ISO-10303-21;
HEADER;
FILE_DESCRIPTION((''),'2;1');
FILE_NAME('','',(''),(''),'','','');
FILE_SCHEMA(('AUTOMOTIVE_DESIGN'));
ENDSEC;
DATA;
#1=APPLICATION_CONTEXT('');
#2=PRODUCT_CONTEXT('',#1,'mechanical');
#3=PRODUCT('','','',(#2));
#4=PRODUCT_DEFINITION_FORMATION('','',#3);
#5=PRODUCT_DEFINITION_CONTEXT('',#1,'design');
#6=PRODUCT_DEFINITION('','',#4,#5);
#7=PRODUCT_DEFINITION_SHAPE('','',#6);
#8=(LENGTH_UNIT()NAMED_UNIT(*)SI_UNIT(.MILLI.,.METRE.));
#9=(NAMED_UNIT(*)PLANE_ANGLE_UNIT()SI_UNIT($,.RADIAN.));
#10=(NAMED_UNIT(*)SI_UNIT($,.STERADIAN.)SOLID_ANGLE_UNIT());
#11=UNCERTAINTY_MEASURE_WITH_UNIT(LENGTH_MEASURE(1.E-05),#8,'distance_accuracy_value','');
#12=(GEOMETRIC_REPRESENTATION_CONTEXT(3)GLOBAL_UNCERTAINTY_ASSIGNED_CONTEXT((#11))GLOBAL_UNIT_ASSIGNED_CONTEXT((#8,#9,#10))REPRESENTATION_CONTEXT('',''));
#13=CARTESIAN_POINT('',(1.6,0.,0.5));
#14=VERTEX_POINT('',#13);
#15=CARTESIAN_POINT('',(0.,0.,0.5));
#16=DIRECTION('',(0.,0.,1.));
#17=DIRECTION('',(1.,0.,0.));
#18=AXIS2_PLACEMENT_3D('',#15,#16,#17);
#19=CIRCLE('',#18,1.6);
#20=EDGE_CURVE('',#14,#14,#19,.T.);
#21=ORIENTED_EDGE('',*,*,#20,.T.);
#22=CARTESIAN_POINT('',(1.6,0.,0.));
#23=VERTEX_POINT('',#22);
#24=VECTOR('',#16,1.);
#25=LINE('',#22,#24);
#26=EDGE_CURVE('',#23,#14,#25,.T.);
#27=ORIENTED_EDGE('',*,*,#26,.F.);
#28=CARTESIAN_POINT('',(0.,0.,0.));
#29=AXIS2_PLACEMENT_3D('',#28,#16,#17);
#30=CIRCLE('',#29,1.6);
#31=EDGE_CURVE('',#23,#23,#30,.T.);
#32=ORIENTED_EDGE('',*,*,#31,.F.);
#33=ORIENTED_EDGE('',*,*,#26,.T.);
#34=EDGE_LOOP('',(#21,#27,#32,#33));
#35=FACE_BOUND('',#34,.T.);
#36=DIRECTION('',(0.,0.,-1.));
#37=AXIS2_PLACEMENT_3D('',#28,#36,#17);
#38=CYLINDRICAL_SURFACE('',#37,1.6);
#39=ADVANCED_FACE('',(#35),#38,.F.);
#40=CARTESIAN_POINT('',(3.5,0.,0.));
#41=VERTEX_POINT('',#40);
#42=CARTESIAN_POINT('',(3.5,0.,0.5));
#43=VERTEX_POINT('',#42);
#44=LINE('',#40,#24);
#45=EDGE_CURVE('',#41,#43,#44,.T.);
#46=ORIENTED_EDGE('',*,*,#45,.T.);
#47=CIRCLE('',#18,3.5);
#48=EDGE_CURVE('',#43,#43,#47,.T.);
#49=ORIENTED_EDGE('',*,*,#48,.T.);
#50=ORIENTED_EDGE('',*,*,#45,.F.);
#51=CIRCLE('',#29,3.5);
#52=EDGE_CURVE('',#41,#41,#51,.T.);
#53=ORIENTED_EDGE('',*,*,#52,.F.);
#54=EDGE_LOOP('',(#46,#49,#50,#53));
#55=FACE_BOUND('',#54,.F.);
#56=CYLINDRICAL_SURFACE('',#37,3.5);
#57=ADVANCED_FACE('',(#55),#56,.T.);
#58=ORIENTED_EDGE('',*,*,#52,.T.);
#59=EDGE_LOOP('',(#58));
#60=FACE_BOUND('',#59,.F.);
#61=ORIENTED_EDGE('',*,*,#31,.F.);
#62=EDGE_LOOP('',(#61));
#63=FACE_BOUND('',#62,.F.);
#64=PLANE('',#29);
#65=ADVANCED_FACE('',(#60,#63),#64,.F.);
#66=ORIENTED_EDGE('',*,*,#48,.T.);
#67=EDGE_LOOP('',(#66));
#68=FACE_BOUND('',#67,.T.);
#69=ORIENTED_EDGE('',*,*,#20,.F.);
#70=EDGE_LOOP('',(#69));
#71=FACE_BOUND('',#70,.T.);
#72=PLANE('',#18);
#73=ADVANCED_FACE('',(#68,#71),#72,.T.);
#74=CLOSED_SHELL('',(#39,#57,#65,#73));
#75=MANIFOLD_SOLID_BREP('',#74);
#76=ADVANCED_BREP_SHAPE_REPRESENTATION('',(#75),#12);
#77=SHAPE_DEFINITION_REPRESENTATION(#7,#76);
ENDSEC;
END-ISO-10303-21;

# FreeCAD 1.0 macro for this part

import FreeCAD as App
import Part
import Sketcher
from FreeCAD import Vector

doc = App.newDocument("Part")
body = doc.addObject("PartDesign::Body", "Body")

sketch1 = doc.addObject("Sketcher::SketchObject", "Sketch")
body.addObject(sketch1)
sketch1.AttachmentSupport = (doc.XY_Plane, [""])
sketch1.MapMode = "FlatFace"
sketch1.addGeometry(Part.Circle(Vector(0, 0, 0), Vector(0, 0, 1), 3.5), False)
sketch1.addGeometry(Part.Circle(Vector(0, 0, 0), Vector(0, 0, 1), 1.6), False)
sketch1.addConstraint(Sketcher.Constraint("Coincident", 0, 3, -1, 1))
sketch1.addConstraint(Sketcher.Constraint("Coincident", 1, 3, -1, 1))
sketch1.addConstraint(Sketcher.Constraint("Diameter", 0, 7.0))
sketch1.addConstraint(Sketcher.Constraint("Diameter", 1, 3.2))
pad1 = doc.addObject("PartDesign::Pad", "Pad")
body.addObject(pad1)
pad1.Profile = sketch1
pad1.Length = 0.5

doc.recompute()
